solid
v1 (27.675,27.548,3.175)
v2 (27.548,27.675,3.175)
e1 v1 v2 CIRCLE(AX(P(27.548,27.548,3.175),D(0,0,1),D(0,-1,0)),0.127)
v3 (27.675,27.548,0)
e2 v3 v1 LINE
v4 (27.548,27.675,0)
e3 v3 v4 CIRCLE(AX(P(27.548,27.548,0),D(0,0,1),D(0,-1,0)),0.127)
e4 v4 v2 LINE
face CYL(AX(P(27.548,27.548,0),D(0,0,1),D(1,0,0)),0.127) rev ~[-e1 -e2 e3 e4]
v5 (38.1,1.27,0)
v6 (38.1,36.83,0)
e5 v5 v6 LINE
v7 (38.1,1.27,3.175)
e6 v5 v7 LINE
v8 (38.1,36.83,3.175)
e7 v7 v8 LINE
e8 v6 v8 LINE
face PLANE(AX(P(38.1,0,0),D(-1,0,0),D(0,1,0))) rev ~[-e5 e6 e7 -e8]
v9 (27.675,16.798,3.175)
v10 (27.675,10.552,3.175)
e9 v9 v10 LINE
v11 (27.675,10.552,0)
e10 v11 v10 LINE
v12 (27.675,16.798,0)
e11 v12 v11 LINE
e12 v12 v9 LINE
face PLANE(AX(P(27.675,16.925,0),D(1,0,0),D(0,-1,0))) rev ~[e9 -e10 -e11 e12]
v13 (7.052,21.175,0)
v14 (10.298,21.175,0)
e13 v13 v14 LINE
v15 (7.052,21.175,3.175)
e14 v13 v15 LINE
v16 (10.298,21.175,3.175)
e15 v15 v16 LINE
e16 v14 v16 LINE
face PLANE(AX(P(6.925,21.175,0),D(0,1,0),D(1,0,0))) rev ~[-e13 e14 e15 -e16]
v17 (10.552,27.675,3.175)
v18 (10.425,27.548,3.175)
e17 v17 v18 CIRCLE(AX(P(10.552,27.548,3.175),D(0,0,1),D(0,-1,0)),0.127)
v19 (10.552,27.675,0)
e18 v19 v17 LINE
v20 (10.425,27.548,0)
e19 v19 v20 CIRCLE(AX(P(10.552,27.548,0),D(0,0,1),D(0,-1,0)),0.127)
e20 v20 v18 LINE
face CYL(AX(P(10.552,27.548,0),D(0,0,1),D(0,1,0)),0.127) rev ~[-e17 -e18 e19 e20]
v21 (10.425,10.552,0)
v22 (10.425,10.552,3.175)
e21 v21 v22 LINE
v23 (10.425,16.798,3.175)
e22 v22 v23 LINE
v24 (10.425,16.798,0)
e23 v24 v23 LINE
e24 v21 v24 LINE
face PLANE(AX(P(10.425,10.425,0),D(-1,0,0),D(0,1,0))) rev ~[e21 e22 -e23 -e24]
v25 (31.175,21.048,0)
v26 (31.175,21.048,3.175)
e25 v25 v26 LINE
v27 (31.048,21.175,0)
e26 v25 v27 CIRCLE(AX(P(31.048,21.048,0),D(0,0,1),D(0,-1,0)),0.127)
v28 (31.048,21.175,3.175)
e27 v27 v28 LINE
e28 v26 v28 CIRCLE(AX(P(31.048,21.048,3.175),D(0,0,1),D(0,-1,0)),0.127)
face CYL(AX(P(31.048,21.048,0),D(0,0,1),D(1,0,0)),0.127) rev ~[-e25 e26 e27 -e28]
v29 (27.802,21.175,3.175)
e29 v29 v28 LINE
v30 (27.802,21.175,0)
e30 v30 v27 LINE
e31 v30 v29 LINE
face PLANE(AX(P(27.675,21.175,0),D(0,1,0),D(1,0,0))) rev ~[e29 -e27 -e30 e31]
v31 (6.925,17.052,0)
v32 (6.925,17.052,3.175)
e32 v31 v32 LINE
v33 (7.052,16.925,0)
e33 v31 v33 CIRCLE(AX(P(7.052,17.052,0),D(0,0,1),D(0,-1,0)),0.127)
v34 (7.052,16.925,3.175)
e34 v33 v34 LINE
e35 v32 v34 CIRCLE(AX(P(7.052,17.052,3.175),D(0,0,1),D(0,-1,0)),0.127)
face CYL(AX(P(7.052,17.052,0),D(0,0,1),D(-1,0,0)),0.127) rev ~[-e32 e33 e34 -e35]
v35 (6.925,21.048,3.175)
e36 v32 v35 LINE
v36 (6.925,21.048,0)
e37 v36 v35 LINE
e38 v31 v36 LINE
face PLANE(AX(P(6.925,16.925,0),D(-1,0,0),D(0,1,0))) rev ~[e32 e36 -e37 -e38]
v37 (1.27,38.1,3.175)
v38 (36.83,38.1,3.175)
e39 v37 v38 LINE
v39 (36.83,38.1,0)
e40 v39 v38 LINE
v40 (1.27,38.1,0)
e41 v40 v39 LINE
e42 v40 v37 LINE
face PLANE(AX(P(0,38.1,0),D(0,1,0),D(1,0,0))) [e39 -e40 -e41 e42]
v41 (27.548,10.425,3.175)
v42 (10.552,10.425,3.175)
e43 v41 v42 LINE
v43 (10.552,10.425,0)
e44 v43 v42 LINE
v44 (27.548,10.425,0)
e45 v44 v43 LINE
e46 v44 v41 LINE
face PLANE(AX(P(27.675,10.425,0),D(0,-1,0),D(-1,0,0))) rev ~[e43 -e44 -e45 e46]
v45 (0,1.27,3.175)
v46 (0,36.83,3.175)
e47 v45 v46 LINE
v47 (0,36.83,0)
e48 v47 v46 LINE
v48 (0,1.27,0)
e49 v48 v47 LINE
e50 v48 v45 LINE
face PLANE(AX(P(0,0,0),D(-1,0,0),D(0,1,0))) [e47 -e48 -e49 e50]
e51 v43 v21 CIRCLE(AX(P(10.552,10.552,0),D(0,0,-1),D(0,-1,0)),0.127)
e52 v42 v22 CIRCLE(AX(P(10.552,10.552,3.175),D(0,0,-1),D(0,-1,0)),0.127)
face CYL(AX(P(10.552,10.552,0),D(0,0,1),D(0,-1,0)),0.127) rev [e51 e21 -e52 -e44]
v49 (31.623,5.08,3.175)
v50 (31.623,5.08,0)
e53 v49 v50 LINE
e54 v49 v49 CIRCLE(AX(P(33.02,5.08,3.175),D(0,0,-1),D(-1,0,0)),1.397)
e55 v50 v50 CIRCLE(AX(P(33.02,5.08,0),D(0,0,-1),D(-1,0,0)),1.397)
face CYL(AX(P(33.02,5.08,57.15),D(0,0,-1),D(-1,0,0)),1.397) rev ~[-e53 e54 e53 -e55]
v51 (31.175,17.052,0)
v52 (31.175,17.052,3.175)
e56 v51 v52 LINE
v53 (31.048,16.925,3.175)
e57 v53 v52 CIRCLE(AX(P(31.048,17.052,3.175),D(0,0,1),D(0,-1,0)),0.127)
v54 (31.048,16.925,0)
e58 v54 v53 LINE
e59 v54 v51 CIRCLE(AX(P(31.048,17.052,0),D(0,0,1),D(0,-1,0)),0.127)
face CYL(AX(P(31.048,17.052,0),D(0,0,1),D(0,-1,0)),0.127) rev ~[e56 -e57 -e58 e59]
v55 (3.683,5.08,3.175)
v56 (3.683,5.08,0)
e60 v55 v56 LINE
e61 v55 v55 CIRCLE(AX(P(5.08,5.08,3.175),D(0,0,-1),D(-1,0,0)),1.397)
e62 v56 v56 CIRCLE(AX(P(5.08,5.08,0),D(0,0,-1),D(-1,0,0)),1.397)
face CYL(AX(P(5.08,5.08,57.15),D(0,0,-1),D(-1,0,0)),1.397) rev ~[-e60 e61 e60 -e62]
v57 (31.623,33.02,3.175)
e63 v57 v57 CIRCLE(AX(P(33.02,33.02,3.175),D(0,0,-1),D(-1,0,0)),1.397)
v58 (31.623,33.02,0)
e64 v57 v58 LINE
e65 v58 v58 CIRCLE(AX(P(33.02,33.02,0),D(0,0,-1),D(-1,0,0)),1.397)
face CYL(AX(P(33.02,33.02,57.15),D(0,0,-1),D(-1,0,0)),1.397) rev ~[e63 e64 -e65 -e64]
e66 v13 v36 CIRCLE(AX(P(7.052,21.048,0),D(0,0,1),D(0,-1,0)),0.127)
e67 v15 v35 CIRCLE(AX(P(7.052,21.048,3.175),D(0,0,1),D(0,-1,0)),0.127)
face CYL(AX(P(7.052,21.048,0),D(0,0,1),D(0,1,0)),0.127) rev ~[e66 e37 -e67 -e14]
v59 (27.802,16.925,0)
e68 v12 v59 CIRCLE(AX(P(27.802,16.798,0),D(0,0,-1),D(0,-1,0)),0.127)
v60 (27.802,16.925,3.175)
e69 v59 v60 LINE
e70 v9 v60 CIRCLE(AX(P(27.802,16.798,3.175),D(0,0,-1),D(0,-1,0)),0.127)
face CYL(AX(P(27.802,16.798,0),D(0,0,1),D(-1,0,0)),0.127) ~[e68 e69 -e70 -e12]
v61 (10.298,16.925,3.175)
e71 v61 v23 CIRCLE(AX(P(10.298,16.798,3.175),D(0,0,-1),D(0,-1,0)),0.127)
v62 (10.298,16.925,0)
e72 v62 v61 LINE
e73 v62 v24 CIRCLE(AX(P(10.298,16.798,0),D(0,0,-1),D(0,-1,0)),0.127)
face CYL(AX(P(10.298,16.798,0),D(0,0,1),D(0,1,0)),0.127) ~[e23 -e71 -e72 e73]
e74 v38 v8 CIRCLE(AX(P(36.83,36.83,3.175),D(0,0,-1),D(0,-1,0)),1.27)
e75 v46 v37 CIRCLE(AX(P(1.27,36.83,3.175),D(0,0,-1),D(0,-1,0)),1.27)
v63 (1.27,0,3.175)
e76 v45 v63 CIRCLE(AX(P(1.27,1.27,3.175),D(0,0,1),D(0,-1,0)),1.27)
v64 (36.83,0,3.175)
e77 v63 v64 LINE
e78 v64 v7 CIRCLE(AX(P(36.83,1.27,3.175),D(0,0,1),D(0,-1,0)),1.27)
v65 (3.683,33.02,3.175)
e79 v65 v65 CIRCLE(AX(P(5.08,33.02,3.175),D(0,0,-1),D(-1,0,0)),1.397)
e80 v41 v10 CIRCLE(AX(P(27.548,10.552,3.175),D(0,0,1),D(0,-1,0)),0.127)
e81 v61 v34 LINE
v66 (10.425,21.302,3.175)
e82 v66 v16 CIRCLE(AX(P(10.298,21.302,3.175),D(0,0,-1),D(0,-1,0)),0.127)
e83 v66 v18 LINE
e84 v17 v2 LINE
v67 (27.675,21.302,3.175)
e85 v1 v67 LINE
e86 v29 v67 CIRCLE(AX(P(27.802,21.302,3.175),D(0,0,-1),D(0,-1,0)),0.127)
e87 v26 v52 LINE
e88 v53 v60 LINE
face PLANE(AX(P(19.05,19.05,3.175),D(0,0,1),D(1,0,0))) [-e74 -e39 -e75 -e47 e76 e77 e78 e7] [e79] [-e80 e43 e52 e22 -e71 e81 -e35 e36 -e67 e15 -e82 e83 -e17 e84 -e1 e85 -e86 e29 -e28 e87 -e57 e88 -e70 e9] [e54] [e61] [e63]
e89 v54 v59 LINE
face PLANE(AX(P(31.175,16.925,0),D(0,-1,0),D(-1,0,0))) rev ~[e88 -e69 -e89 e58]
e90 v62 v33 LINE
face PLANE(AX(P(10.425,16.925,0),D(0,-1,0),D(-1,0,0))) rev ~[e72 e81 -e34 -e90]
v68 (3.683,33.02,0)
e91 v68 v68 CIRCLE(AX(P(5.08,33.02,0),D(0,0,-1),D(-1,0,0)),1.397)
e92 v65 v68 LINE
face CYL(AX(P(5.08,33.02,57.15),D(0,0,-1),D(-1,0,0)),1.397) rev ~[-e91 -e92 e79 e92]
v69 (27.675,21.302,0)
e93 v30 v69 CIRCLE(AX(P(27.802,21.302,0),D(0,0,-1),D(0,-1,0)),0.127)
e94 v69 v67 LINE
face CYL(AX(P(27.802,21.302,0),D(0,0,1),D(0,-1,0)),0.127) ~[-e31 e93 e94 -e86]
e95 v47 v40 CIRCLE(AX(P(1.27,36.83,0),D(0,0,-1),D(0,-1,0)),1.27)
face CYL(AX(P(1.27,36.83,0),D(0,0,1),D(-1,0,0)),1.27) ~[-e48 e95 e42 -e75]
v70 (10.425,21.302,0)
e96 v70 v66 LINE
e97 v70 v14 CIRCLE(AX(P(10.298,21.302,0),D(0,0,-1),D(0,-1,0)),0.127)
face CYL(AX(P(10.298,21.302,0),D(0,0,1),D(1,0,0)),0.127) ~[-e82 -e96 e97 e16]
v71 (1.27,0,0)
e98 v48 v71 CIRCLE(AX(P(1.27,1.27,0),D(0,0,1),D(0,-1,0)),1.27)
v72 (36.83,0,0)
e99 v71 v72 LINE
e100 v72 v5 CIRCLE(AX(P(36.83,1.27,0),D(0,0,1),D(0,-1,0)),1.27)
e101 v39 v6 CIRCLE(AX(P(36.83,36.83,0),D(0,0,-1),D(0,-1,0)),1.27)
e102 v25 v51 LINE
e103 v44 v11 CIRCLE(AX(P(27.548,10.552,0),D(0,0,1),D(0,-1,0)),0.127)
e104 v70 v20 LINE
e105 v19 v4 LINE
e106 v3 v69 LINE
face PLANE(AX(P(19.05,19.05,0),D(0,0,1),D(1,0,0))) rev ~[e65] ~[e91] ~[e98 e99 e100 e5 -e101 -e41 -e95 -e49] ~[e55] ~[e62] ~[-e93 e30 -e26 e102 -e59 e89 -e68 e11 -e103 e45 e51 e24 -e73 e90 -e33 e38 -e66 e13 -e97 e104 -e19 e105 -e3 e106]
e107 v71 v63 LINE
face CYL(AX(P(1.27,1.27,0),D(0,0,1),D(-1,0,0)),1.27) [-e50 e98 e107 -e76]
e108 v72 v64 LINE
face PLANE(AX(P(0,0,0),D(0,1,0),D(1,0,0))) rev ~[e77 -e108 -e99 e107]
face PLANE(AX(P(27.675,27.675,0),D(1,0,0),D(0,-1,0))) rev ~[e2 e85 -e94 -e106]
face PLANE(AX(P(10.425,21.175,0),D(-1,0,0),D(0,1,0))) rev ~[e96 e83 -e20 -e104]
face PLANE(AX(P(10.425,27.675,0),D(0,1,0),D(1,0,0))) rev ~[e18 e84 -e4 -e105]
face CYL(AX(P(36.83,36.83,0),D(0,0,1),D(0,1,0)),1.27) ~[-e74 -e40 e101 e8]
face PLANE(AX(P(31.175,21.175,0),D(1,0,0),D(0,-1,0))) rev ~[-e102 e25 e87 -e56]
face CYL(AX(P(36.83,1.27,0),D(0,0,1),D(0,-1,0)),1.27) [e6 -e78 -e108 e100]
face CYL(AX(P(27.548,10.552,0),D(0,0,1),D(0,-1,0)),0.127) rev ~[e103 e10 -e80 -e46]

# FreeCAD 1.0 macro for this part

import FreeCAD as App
import Part
import Sketcher
Q = App.Units.Quantity


def edges_at(feature, points):
    """Names of the edges that pass closest to the given points."""
    edges = feature.Shape.Edges
    near = lambda p: min(range(len(edges)), key=lambda i: edges[i].distToShape(Part.Vertex(*p))[0])
    return sorted({f"Edge{near(p) + 1}" for p in points})


def add_polygon(sketch, points):
    """Adds a closed chain of lines whose ends are joined by coincident constraints."""
    first, n = sketch.GeometryCount, len(points)
    for a, b in zip(points, points[1:] + points[:1]):
        sketch.addGeometry(Part.LineSegment(App.Vector(*a, 0), App.Vector(*b, 0)), False)
    for i in range(n):
        sketch.addConstraint(Sketcher.Constraint("Coincident", first + i, 2, first + (i + 1) % n, 1))

doc = App.newDocument("Part")
body = doc.addObject("PartDesign::Body", "Body")

sketch1 = body.newObject("Sketcher::SketchObject", "Sketch")
sketch1.AttachmentSupport = (doc.getObject("XY_Plane"), [""])
sketch1.MapMode = "FlatFace"
add_polygon(sketch1, [(0, 38.1), (0, 0), (38.1, 0), (38.1, 38.1)])
add_polygon(sketch1, [(27.7, 10.4), (10.4, 10.4), (10.4, 16.9), (6.9, 16.9), (6.9, 21.2), (10.4, 21.2), (10.4, 27.7), (27.7, 27.7), (27.7, 21.2), (31.2, 21.2), (31.2, 16.9), (27.7, 16.9)])
sketch1.addConstraint(Sketcher.Constraint("Vertical", 0))
sketch1.addConstraint(Sketcher.Constraint("Horizontal", 1))
sketch1.addConstraint(Sketcher.Constraint("Vertical", 2))
sketch1.addConstraint(Sketcher.Constraint("Horizontal", 3))
sketch1.addConstraint(Sketcher.Constraint("Horizontal", 4))
sketch1.addConstraint(Sketcher.Constraint("Vertical", 5))
sketch1.addConstraint(Sketcher.Constraint("Horizontal", 6))
sketch1.addConstraint(Sketcher.Constraint("Vertical", 7))
sketch1.addConstraint(Sketcher.Constraint("Horizontal", 8))
sketch1.addConstraint(Sketcher.Constraint("Vertical", 9))
sketch1.addConstraint(Sketcher.Constraint("Horizontal", 10))
sketch1.addConstraint(Sketcher.Constraint("Vertical", 11))
sketch1.addConstraint(Sketcher.Constraint("Horizontal", 12))
sketch1.addConstraint(Sketcher.Constraint("Vertical", 13))
sketch1.addConstraint(Sketcher.Constraint("Horizontal", 14))
sketch1.addConstraint(Sketcher.Constraint("Vertical", 15))
sketch1.addConstraint(Sketcher.Constraint("Coincident", 0, 2, -1, 1))
sketch1.addConstraint(Sketcher.Constraint("Horizontal", 8, 2, 11, 2))
sketch1.addConstraint(Sketcher.Constraint("Horizontal", 6, 2, 13, 2))
sketch1.addConstraint(Sketcher.Constraint("Vertical", 5, 2, 8, 2))
sketch1.addConstraint(Sketcher.Constraint("Vertical", 11, 2, 14, 2))
sketch1.addConstraint(Sketcher.Constraint("Equal", 8, 12))
sketch1.addConstraint(Sketcher.Constraint("Equal", 3, 0))
sketch1.addConstraint(Sketcher.Constraint("Equal", 5, 9))
sketch1.addConstraint(Sketcher.Constraint("DistanceX", 1, 1, 1, 2, Q("1.5 in")))
sketch1.addConstraint(Sketcher.Constraint("DistanceX", 4, 2, 4, 1, 17.25))
sketch1.addConstraint(Sketcher.Constraint("DistanceX", 6, 2, 6, 1, 3.5))
sketch1.addConstraint(Sketcher.Constraint("DistanceY", 5, 1, 5, 2, 6.5))
sketch1.addConstraint(Sketcher.Constraint("DistanceY", 7, 1, 7, 2, 4.25))
sketch1.addConstraint(Sketcher.Constraint("DistanceX", -1, 1, 4, 2, 10.425))
sketch1.addConstraint(Sketcher.Constraint("DistanceY", -1, 1, 4, 2, 10.425))
pad1 = body.newObject("PartDesign::Pad", "Pad")
pad1.Profile = sketch1
pad1.Length = Q("0.125 in")
doc.recompute()

fillet = body.newObject("PartDesign::Fillet", "Fillet")
fillet.Base = (pad1, edges_at(pad1, [
    (0, 38.1, 1.587),
    (38.1, 38.1, 1.587),
    (38.1, 0, 1.587),
    (0, 0, 1.587),
]))
fillet.Radius = Q("0.05 in")
doc.recompute()

fillet2 = body.newObject("PartDesign::Fillet", "Fillet001")
fillet2.Base = (fillet, edges_at(fillet, [
    (10.425, 10.425, 1.587),
    (27.675, 10.425, 1.587),
    (27.675, 16.925, 1.587),
    (31.175, 16.925, 1.587),
    (31.175, 21.175, 1.587),
    (27.675, 21.175, 1.587),
    (27.675, 27.675, 1.587),
    (10.425, 27.675, 1.587),
    (10.425, 21.175, 1.587),
    (6.925, 21.175, 1.587),
    (6.925, 16.925, 1.587),
    (10.425, 16.925, 1.587),
]))
fillet2.Radius = Q("0.005 in")

sketch2 = body.newObject("Sketcher::SketchObject", "Sketch001")
sketch2.AttachmentSupport = (doc.getObject("XY_Plane"), [""])
sketch2.MapMode = "FlatFace"
sketch2.AttachmentOffset = App.Placement(App.Vector(0, 0, 0.125 * 25.4), App.Rotation())
sketch2.addGeometry(Part.Circle(App.Vector(5.1, 33, 0), App.Vector(0, 0, 1), 1.4), False)
sketch2.addGeometry(Part.Circle(App.Vector(33, 33, 0), App.Vector(0, 0, 1), 1.4), False)
sketch2.addGeometry(Part.Circle(App.Vector(33, 5.1, 0), App.Vector(0, 0, 1), 1.4), False)
sketch2.addGeometry(Part.Circle(App.Vector(5.1, 5.1, 0), App.Vector(0, 0, 1), 1.4), False)
sketch2.addConstraint(Sketcher.Constraint("Equal", 0, 1))
sketch2.addConstraint(Sketcher.Constraint("Equal", 1, 2))
sketch2.addConstraint(Sketcher.Constraint("Equal", 2, 3))
sketch2.addConstraint(Sketcher.Constraint("Horizontal", 0, 3, 1, 3))
sketch2.addConstraint(Sketcher.Constraint("Horizontal", 2, 3, 3, 3))
sketch2.addConstraint(Sketcher.Constraint("Vertical", 1, 3, 2, 3))
sketch2.addConstraint(Sketcher.Constraint("Vertical", 0, 3, 3, 3))
sketch2.addConstraint(Sketcher.Constraint("Diameter", 0, Q("0.11 in")))
sketch2.addConstraint(Sketcher.Constraint("DistanceX", -1, 1, 0, 3, Q("0.2 in")))
sketch2.addConstraint(Sketcher.Constraint("DistanceY", -1, 1, 0, 3, Q("1.3 in")))
sketch2.addConstraint(Sketcher.Constraint("DistanceX", -1, 1, 1, 3, Q("1.3 in")))
sketch2.addConstraint(Sketcher.Constraint("DistanceY", -1, 1, 2, 3, Q("0.2 in")))
doc.recompute()
hole = body.newObject("PartDesign::Hole", "Hole")
hole.Profile = sketch2
hole.ThreadType = "None"
hole.Diameter = Q("0.11 in")
hole.DepthType = "ThroughAll"

doc.recompute()
